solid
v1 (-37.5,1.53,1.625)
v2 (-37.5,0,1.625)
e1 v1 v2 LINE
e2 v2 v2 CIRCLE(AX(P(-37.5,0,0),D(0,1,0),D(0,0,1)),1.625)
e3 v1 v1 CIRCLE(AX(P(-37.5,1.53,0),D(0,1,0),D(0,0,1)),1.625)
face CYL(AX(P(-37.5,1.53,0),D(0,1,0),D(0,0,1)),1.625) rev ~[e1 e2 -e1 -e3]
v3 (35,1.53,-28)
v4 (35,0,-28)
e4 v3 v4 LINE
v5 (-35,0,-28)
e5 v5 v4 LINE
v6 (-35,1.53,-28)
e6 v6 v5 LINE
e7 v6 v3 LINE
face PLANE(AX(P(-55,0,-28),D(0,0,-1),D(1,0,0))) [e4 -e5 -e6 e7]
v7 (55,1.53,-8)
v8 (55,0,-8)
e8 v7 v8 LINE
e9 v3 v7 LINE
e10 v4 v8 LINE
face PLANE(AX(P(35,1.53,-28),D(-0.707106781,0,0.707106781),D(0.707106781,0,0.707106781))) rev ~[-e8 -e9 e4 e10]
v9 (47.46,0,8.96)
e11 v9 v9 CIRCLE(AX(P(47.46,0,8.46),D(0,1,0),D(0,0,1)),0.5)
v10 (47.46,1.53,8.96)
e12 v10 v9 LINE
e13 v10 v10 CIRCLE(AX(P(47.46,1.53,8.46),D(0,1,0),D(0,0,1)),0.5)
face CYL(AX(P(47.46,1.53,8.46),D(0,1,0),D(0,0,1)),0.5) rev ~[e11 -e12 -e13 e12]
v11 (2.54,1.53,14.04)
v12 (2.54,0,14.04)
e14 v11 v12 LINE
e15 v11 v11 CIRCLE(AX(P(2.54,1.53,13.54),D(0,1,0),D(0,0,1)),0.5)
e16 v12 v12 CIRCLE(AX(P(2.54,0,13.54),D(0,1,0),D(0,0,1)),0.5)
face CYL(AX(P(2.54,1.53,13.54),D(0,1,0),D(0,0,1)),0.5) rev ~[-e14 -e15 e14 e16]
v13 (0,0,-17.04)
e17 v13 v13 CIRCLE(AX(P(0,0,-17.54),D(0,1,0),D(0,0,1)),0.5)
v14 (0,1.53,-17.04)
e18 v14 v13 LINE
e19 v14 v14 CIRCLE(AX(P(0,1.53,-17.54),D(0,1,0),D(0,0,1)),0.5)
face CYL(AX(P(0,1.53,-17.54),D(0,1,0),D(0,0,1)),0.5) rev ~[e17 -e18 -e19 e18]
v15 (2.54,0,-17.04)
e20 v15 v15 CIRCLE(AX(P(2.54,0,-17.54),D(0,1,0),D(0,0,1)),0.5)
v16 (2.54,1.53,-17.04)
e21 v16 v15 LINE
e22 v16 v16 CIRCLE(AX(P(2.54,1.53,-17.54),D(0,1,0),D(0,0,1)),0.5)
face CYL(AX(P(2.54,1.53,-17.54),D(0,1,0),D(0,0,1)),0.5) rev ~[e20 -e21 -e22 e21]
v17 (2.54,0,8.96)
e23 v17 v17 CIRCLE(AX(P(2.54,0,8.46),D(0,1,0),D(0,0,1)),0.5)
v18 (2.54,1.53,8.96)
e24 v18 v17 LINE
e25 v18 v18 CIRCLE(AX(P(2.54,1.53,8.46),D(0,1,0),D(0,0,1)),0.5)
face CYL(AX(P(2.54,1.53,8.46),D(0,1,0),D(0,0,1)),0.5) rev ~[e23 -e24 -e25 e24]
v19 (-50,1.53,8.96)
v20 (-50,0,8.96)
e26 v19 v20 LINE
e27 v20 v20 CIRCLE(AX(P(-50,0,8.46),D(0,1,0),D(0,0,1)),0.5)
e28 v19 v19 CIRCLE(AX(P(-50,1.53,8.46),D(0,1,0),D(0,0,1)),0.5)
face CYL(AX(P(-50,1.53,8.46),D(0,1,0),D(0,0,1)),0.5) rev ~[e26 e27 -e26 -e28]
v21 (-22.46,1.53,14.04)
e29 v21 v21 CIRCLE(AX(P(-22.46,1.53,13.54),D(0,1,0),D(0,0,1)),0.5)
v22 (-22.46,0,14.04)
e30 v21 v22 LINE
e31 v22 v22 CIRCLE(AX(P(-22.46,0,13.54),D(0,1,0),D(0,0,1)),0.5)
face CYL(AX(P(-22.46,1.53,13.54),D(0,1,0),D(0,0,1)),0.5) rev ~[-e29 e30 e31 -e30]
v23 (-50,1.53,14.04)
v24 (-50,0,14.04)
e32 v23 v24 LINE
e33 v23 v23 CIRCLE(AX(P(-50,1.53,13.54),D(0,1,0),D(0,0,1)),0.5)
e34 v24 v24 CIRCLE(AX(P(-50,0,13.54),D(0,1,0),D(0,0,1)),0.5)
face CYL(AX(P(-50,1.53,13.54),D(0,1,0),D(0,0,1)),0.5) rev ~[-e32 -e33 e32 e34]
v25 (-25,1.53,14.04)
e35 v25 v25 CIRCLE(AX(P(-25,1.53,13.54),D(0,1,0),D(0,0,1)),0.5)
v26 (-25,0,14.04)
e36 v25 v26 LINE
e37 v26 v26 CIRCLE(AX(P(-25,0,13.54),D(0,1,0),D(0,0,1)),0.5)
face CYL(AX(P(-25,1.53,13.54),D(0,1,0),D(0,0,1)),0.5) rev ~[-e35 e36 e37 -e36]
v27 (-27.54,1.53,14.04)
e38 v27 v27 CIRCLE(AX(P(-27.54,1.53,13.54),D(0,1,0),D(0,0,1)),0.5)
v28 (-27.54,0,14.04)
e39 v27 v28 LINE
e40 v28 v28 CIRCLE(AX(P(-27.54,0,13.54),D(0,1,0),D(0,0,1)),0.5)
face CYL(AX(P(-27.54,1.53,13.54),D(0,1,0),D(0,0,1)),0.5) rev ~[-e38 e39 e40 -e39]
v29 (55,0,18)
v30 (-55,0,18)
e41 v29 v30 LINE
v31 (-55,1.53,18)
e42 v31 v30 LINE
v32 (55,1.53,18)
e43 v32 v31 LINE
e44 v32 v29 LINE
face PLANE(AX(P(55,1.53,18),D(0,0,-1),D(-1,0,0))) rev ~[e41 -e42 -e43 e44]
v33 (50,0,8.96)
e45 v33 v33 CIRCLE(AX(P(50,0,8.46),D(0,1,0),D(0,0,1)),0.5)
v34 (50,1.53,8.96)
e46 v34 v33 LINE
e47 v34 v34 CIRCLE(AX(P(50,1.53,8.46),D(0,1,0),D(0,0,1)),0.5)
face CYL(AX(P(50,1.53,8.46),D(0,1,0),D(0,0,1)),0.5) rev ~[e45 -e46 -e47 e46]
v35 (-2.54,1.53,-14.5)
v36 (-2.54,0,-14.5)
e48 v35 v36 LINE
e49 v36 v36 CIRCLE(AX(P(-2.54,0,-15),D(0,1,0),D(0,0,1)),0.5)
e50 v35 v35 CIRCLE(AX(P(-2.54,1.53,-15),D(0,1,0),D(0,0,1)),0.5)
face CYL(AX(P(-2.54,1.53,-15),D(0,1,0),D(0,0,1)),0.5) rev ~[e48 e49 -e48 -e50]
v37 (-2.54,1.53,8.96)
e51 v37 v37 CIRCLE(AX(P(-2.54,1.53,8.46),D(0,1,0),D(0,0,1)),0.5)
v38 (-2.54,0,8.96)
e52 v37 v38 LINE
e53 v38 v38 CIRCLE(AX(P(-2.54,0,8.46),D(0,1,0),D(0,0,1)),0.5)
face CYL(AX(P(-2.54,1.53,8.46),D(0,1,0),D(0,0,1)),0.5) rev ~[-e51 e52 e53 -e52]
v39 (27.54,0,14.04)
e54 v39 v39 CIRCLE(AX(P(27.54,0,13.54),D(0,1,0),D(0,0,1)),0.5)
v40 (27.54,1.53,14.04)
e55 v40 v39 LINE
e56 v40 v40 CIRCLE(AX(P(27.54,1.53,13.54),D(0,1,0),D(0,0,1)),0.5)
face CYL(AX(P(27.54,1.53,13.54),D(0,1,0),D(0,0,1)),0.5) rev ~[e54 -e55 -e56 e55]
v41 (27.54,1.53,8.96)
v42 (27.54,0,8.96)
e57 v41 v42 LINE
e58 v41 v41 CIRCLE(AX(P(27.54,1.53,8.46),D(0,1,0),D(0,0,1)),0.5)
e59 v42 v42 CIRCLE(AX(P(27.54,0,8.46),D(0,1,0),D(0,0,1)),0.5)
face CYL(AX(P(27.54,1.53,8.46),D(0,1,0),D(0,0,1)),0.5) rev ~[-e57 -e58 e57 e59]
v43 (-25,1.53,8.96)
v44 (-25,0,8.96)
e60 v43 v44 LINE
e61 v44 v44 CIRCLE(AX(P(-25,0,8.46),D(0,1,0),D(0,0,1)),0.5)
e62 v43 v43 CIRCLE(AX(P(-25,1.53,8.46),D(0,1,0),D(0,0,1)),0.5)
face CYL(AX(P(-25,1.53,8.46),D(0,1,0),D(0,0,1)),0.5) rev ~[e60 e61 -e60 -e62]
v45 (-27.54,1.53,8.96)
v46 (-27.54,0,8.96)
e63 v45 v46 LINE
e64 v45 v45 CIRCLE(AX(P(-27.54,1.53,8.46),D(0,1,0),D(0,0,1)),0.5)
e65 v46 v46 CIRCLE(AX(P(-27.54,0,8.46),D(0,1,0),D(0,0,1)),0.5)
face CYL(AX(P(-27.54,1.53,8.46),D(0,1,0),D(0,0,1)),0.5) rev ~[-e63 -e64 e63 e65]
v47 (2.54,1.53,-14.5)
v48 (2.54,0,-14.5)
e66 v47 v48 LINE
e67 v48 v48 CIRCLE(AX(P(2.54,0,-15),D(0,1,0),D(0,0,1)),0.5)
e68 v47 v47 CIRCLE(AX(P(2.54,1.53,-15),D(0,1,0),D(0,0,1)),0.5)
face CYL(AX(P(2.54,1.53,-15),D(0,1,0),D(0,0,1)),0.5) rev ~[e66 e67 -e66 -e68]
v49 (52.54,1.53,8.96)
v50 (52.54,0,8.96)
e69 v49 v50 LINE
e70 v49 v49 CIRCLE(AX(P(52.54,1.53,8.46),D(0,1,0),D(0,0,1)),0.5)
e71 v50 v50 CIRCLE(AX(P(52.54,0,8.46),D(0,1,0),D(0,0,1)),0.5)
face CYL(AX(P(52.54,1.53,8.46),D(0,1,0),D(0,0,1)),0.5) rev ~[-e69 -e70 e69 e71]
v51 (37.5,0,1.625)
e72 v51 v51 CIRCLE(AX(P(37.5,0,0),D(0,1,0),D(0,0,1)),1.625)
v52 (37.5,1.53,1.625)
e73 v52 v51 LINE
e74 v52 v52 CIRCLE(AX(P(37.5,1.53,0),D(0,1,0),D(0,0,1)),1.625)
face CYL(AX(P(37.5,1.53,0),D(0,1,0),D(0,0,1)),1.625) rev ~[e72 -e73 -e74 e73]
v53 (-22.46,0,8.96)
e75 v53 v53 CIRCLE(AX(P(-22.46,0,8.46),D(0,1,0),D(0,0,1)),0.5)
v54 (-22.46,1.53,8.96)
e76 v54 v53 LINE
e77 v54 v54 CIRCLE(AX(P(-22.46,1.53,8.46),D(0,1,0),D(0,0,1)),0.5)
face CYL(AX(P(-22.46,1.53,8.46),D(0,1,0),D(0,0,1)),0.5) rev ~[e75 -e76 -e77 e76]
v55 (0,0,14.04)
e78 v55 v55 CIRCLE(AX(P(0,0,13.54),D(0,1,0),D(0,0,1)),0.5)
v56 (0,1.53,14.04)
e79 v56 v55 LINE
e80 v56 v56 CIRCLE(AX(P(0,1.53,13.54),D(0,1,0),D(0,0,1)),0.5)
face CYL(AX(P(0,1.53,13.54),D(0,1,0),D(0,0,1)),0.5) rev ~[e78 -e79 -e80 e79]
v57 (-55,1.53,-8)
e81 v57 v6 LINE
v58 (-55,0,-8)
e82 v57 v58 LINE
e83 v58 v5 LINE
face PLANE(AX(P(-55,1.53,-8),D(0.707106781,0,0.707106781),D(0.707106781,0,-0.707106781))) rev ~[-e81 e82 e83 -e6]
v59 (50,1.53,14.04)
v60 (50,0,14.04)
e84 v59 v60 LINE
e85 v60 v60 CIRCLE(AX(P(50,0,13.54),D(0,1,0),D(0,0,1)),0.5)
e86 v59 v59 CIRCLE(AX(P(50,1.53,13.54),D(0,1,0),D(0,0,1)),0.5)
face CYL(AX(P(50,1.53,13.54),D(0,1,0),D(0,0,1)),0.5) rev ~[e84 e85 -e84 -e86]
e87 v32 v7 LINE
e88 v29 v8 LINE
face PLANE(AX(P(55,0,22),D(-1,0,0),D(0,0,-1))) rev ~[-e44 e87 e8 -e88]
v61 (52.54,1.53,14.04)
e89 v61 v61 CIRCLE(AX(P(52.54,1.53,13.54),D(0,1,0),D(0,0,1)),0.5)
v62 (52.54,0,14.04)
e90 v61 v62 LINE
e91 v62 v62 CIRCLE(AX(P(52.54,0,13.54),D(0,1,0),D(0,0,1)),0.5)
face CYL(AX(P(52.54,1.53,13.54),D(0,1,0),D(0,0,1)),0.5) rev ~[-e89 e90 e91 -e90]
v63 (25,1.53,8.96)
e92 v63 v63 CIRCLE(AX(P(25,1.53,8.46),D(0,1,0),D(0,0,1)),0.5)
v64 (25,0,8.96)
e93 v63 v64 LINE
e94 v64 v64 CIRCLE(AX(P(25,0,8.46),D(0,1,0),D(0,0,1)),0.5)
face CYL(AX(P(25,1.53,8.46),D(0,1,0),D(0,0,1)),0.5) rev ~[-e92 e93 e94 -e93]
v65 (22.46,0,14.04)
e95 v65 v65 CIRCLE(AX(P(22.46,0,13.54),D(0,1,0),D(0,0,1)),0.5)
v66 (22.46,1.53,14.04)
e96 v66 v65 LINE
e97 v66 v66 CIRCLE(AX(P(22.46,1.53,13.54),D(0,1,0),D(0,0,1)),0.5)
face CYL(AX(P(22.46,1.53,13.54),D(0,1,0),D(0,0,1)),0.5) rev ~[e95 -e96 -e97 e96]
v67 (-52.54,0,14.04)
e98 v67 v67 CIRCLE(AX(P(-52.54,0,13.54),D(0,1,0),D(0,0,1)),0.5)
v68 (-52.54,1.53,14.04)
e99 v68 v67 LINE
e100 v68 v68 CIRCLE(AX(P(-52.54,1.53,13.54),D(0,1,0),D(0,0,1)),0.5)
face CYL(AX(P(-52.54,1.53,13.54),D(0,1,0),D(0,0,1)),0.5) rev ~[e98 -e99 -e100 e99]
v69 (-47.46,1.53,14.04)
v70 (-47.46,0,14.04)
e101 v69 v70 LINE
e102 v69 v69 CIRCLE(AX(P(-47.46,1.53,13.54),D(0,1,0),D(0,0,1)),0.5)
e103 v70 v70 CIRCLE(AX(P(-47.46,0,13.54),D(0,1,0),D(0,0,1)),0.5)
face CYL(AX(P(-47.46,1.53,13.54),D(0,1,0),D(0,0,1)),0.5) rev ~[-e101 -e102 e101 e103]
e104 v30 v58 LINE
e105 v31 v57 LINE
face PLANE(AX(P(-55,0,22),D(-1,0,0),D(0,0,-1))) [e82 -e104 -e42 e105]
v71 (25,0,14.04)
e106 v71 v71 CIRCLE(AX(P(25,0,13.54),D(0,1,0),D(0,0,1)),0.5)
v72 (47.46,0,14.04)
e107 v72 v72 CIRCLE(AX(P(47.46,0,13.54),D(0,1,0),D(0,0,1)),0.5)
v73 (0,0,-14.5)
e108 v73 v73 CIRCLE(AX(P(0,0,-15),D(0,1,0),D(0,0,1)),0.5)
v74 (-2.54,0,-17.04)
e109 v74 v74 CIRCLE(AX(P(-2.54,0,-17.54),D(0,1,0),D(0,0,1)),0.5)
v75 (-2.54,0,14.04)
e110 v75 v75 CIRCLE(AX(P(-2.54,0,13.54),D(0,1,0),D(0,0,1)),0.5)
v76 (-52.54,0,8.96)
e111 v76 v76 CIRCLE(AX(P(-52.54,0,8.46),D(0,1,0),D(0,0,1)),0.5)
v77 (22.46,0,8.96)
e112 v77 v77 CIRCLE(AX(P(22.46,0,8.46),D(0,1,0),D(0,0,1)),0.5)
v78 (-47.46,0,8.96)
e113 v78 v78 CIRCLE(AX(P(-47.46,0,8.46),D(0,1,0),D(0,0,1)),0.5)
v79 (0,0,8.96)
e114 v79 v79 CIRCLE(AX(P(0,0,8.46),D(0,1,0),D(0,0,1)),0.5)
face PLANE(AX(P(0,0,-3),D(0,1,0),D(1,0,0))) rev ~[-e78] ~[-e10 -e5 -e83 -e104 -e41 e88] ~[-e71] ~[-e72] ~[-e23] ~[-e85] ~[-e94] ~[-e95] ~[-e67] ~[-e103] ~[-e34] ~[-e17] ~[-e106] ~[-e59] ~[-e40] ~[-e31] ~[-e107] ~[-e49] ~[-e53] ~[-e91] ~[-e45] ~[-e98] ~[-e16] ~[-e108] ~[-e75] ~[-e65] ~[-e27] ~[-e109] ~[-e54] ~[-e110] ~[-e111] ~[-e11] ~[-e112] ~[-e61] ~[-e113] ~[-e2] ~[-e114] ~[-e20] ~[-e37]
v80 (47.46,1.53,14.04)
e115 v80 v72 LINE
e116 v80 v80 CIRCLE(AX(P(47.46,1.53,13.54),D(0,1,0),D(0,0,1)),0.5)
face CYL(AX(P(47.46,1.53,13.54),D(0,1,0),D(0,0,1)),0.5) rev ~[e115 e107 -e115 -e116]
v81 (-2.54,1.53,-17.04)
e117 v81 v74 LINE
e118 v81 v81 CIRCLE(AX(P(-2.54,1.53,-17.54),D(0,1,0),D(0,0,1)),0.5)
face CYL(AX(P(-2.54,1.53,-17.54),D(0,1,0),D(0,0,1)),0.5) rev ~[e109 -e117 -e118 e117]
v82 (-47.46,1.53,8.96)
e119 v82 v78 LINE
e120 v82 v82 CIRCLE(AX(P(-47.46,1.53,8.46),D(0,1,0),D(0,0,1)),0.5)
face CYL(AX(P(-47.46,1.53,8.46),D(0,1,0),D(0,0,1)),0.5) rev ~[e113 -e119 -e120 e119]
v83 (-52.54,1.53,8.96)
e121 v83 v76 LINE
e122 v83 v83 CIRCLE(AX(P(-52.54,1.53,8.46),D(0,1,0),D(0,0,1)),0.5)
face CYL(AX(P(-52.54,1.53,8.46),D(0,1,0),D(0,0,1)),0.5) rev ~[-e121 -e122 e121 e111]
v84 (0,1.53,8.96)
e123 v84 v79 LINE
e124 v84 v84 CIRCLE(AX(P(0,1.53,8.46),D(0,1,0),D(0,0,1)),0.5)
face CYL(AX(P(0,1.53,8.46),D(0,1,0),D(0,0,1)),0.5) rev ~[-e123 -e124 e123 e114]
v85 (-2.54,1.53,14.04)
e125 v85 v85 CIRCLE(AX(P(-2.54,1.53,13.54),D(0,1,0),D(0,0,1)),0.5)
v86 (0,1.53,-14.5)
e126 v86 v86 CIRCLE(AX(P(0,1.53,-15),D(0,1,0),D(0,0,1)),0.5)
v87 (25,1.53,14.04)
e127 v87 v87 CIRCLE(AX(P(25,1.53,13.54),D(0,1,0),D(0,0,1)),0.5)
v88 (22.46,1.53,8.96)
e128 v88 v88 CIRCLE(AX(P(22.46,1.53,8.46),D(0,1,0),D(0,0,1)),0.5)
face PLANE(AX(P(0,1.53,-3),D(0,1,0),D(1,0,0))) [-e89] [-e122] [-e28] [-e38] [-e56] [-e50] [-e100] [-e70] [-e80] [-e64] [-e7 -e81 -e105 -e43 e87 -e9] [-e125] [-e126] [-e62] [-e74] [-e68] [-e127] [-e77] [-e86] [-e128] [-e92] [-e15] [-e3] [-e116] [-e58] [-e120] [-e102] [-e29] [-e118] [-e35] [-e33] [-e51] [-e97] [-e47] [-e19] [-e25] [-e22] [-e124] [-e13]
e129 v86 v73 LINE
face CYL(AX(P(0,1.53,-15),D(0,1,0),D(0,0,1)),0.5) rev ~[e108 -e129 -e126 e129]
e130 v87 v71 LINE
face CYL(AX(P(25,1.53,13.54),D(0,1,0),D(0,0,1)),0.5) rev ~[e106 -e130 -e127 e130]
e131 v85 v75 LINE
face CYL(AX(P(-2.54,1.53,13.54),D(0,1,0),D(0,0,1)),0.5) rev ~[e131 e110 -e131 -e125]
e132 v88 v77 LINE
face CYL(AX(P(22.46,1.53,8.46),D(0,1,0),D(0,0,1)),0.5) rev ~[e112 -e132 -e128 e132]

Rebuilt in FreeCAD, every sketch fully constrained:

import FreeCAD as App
import Part
import Sketcher

V = App.Vector


def add_polygon(sketch, points):
    """Adds a closed chain of lines whose ends are joined by coincident constraints."""
    first, n = sketch.GeometryCount, len(points)
    for a, b in zip(points, points[1:] + points[:1]):
        sketch.addGeometry(Part.LineSegment(App.Vector(*a, 0), App.Vector(*b, 0)), False)
    for i in range(n):
        sketch.addConstraint(Sketcher.Constraint("Coincident", first + i, 2, first + (i + 1) % n, 1))

doc = App.newDocument("Part")
body = doc.addObject("PartDesign::Body", "Body")

# Sketch on XZ plane
sketch1 = body.newObject("Sketcher::SketchObject", "Sketch")
sketch1.AttachmentSupport = (doc.getObject("XZ_Plane"), [""])
sketch1.MapMode = "FlatFace"
add_polygon(sketch1, [(-55, -28), (-55, 22), (55, 22), (55, -28)])  # lines 0-3
sketch1.addConstraint([
    Sketcher.Constraint("Vertical", 0),
    Sketcher.Constraint("Horizontal", 1),
    Sketcher.Constraint("Vertical", 2),
    Sketcher.Constraint("Horizontal", 3),
    Sketcher.Constraint("DistanceX", 1, 1, 1, 2, 110.0),
    Sketcher.Constraint("DistanceY", 0, 1, 0, 2, 50.0),
    Sketcher.Constraint("DistanceX", 0, 2, -1, 1, 55.0),
    Sketcher.Constraint("DistanceY", -1, 1, 0, 2, 22.0),
])
pad1 = body.newObject("PartDesign::Pad", "Pad")
pad1.Profile = sketch1
pad1.Length = 1.53
pad1.Reversed = True

# Sketch on XZ plane
sketch2 = body.newObject("Sketcher::SketchObject", "Sketch001")
sketch2.AttachmentSupport = (doc.getObject("XZ_Plane"), [""])
sketch2.MapMode = "FlatFace"
sketch2.AttachmentOffset = App.Placement(V(0, 0, -1.53), App.Rotation())
add_polygon(sketch2, [(-71, -35), (-71, 35), (71, 35), (71, -35)])  # lines 0-3
add_polygon(sketch2, [(55, -8), (55, 18), (-55, 18), (-55, -8), (-35, -28), (35, -28)])  # lines 4-9
sketch2.addConstraint([
    Sketcher.Constraint("Vertical", 0),
    Sketcher.Constraint("Horizontal", 1),
    Sketcher.Constraint("Vertical", 2),
    Sketcher.Constraint("Horizontal", 3),
    Sketcher.Constraint("Vertical", 4),
    Sketcher.Constraint("Horizontal", 5),
    Sketcher.Constraint("Vertical", 6),
    Sketcher.Constraint("Horizontal", 8),
    Sketcher.Constraint("Symmetric", 0, 2, 2, 2, -1, 1),
    Sketcher.Constraint("Symmetric", 6, 2, 9, 2, -2),
    Sketcher.Constraint("Perpendicular", 7, 9),
    Sketcher.Constraint("Equal", 7, 9),
    Sketcher.Constraint("DistanceX", 5, 2, 5, 1, 110.0),
    Sketcher.Constraint("DistanceX", 8, 1, 8, 2, 70.0),
    Sketcher.Constraint("DistanceY", 4, 1, 4, 2, 26.0),
    Sketcher.Constraint("DistanceY", -1, 1, 4, 2, 18.0),
    Sketcher.Constraint("DistanceX", 1, 1, 1, 2, 141.050966),
    Sketcher.Constraint("DistanceY", 0, 1, 0, 2, 69.531536),
])
pocket1 = body.newObject("PartDesign::Pocket", "Pocket")
pocket1.Profile = sketch2
pocket1.Length = 62.736058
pocket1.Reversed = True

# Sketch on XZ plane
sketch3 = body.newObject("Sketcher::SketchObject", "Sketch002")
sketch3.AttachmentSupport = (doc.getObject("XZ_Plane"), [""])
sketch3.MapMode = "FlatFace"
sketch3.AttachmentOffset = App.Placement(V(0, 0, -1.53), App.Rotation())
sketch3.addGeometry([
    Part.Circle(V(-2.5, 8.5, 0), V(0, 0, 1), 0.5),  # 0
    Part.Circle(V(0, 8.5, 0), V(0, 0, 1), 0.5),  # 1
    Part.Circle(V(2.5, 8.5, 0), V(0, 0, 1), 0.5),  # 2
    Part.Circle(V(-2.5, 13.5, 0), V(0, 0, 1), 0.5),  # 3
    Part.Circle(V(0, 13.5, 0), V(0, 0, 1), 0.5),  # 4
    Part.Circle(V(2.5, 13.5, 0), V(0, 0, 1), 0.5),  # 5
], False)
sketch3.addConstraint([
    Sketcher.Constraint("Equal", 0, 1),
    Sketcher.Constraint("Equal", 1, 2),
    Sketcher.Constraint("Equal", 2, 3),
    Sketcher.Constraint("Equal", 3, 4),
    Sketcher.Constraint("Equal", 4, 5),
    Sketcher.Constraint("Symmetric", 0, 3, 2, 3, -2),
    Sketcher.Constraint("Symmetric", 3, 3, 5, 3, -2),
    Sketcher.Constraint("PointOnObject", 1, 3, -2),
    Sketcher.Constraint("PointOnObject", 4, 3, -2),
    Sketcher.Constraint("Horizontal", 0, 3, 1, 3),
    Sketcher.Constraint("Horizontal", 3, 3, 4, 3),
    Sketcher.Constraint("Vertical", 0, 3, 3, 3),
    Sketcher.Constraint("Diameter", 0, 1.0),
    Sketcher.Constraint("DistanceX", 0, 3, -1, 1, 2.54),
    Sketcher.Constraint("DistanceY", -1, 1, 0, 3, 8.46),
    Sketcher.Constraint("DistanceY", -1, 1, 3, 3, 13.54),
])
pocket2 = body.newObject("PartDesign::Pocket", "Pocket001")
pocket2.Profile = sketch3
pocket2.Type = "ThroughAll"
pocket2.Reversed = True

# Sketch on XZ plane
sketch4 = body.newObject("Sketcher::SketchObject", "Sketch003")
sketch4.AttachmentSupport = (doc.getObject("XZ_Plane"), [""])
sketch4.MapMode = "FlatFace"
sketch4.AttachmentOffset = App.Placement(V(0, 0, -1.53), App.Rotation())
sketch4.addGeometry([
    Part.Circle(V(-37.5, 0, 0), V(0, 0, 1), 1.6),
    Part.Circle(V(37.5, 0, 0), V(0, 0, 1), 1.6),
], False)
sketch4.addConstraint([
    Sketcher.Constraint("Equal", 0, 1),
    Sketcher.Constraint("Symmetric", 0, 3, 1, 3, -1, 1),
    Sketcher.Constraint("PointOnObject", 0, 3, -1),
    Sketcher.Constraint("Diameter", 0, 3.25),
    Sketcher.Constraint("DistanceX", 0, 3, 1, 3, 75.0),
])
pocket3 = body.newObject("PartDesign::Pocket", "Pocket002")
pocket3.Profile = sketch4
pocket3.Type = "ThroughAll"
pocket3.Reversed = True

# Sketch on XZ plane
sketch5 = body.newObject("Sketcher::SketchObject", "Sketch004")
sketch5.AttachmentSupport = (doc.getObject("XZ_Plane"), [""])
sketch5.MapMode = "FlatFace"
sketch5.AttachmentOffset = App.Placement(V(0, 0, -1.53), App.Rotation())
sketch5.addGeometry([
    Part.Circle(V(-2.5, -17.5, 0), V(0, 0, 1), 0.5),  # 0
    Part.Circle(V(0, -17.5, 0), V(0, 0, 1), 0.5),  # 1
    Part.Circle(V(2.5, -17.5, 0), V(0, 0, 1), 0.5),  # 2
    Part.Circle(V(-2.5, -15, 0), V(0, 0, 1), 0.5),  # 3
    Part.Circle(V(0, -15, 0), V(0, 0, 1), 0.5),  # 4
    Part.Circle(V(2.5, -15, 0), V(0, 0, 1), 0.5),  # 5
], False)
sketch5.addConstraint([
    Sketcher.Constraint("Equal", 0, 1),
    Sketcher.Constraint("Equal", 1, 2),
    Sketcher.Constraint("Equal", 2, 3),
    Sketcher.Constraint("Equal", 3, 4),
    Sketcher.Constraint("Equal", 4, 5),
    Sketcher.Constraint("Symmetric", 0, 3, 2, 3, -2),
    Sketcher.Constraint("Symmetric", 3, 3, 5, 3, -2),
    Sketcher.Constraint("PointOnObject", 1, 3, -2),
    Sketcher.Constraint("PointOnObject", 4, 3, -2),
    Sketcher.Constraint("Horizontal", 0, 3, 1, 3),
    Sketcher.Constraint("Horizontal", 3, 3, 4, 3),
    Sketcher.Constraint("Vertical", 0, 3, 3, 3),
    Sketcher.Constraint("Diameter", 0, 1.0),
    Sketcher.Constraint("DistanceY", 3, 3, -1, 1, 15.0),
    Sketcher.Constraint("DistanceX", 0, 3, -1, 1, 2.54),
    Sketcher.Constraint("DistanceY", 0, 3, -1, 1, 17.54),
])
pocket4 = body.newObject("PartDesign::Pocket", "Pocket003")
pocket4.Profile = sketch5
pocket4.Type = "ThroughAll"
pocket4.Reversed = True
doc.recompute()

linearpattern = body.newObject("PartDesign::LinearPattern", "LinearPattern")
linearpattern.Originals = [pocket2]
linearpattern.Direction = (doc.getObject("X_Axis"), [""])
linearpattern.Mode = "offset"
linearpattern.Offset = 25
linearpattern.Occurrences = 3
body.Tip = linearpattern
doc.recompute()

linearpattern2 = body.newObject("PartDesign::LinearPattern", "LinearPattern001")
linearpattern2.Originals = [pocket2]
linearpattern2.Direction = (doc.getObject("X_Axis"), [""])
linearpattern2.Mode = "offset"
linearpattern2.Offset = 25
linearpattern2.Occurrences = 3
linearpattern2.Reversed = True
body.Tip = linearpattern2

doc.recompute()
